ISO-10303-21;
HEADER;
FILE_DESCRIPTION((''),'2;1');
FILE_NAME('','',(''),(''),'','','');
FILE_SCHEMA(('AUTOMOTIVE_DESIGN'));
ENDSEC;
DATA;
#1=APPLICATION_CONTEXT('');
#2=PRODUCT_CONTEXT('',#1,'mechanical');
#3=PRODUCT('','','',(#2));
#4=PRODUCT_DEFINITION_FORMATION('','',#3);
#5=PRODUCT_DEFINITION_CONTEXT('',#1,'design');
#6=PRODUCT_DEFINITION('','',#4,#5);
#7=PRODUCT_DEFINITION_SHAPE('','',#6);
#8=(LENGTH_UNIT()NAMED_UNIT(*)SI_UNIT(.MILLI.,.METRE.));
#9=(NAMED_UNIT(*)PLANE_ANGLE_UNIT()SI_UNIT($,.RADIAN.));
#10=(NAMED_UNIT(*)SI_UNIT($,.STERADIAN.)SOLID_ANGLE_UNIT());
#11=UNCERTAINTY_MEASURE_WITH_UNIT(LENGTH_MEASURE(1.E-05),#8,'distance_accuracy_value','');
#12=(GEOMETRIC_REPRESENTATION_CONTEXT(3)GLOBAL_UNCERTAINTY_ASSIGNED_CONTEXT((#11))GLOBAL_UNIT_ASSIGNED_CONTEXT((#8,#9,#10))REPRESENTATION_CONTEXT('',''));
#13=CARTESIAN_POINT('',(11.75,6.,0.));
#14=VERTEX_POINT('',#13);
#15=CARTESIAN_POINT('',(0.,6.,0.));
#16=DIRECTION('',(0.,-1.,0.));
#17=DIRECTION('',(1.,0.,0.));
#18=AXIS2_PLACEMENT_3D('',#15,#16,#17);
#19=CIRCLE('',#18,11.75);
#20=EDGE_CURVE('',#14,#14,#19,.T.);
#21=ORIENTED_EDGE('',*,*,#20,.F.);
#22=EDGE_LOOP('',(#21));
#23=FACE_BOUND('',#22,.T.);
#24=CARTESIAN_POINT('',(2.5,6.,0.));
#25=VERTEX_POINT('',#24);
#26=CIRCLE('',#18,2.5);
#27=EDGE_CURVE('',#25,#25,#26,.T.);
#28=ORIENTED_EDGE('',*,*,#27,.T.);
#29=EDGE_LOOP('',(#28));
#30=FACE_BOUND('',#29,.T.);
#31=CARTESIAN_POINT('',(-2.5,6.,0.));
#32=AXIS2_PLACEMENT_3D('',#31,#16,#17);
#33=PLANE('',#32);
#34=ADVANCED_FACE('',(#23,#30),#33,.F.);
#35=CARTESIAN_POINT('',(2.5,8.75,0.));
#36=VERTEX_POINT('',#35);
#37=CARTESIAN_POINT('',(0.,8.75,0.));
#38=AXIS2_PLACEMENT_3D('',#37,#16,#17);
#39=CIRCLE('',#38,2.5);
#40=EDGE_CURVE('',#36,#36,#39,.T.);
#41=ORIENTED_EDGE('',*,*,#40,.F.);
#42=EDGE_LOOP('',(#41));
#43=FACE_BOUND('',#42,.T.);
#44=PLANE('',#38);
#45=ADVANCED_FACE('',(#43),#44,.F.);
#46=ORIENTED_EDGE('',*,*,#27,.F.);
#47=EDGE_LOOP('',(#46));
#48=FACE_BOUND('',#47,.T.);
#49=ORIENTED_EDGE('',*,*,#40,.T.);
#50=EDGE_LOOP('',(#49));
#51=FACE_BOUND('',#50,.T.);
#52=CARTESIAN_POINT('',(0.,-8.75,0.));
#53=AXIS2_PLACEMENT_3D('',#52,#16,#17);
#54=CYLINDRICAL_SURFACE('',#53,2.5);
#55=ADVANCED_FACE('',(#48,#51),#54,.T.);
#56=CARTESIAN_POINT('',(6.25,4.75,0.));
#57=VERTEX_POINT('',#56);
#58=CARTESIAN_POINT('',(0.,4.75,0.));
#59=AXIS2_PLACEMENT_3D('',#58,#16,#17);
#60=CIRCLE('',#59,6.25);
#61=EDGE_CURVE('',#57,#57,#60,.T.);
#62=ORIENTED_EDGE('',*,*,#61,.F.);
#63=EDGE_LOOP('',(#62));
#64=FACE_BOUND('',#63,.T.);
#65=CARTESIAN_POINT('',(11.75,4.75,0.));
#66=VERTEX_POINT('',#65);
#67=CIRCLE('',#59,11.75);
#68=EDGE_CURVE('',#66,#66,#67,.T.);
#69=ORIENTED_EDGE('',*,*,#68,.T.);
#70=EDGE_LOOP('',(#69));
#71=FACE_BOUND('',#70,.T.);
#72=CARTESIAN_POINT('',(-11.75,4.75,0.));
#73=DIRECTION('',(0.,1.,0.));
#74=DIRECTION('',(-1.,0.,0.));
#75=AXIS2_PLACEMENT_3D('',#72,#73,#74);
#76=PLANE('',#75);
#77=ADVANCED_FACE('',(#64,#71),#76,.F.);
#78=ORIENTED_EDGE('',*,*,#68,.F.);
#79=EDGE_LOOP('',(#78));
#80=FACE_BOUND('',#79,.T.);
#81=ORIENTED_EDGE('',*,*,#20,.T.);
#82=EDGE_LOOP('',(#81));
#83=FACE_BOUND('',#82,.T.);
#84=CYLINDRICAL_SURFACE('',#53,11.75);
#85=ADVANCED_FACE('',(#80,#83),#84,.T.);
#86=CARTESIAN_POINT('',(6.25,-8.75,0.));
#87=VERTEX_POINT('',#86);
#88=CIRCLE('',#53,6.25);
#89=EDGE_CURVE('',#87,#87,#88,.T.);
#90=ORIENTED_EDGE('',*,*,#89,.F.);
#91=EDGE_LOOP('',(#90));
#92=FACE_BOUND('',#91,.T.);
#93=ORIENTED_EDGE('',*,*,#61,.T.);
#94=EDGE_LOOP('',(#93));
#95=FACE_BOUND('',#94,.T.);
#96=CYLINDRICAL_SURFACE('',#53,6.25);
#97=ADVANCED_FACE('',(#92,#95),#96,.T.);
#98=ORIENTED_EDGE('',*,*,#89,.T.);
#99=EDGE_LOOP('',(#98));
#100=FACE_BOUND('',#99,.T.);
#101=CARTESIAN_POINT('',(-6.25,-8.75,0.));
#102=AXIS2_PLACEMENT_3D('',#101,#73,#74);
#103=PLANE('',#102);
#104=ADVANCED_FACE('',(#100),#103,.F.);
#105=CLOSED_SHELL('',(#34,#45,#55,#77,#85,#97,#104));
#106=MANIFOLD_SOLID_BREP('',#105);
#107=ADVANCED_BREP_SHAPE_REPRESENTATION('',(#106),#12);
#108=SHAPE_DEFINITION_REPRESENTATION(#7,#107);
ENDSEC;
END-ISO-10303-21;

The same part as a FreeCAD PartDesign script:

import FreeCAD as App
import Part
import Sketcher
Q = App.Units.Quantity

doc = App.newDocument("Part")
body = doc.addObject("PartDesign::Body", "Body")

sketch1 = doc.addObject("Sketcher::SketchObject", "Sketch")
body.addObject(sketch1)
sketch1.AttachmentSupport = (doc.XY_Plane, [""])
sketch1.MapMode = "FlatFace"
sketch1.addGeometry([
    Part.LineSegment(App.Vector(0, -8.75, 0), App.Vector(0, 8.75, 0)),
    Part.LineSegment(App.Vector(0, 8.75, 0), App.Vector(-2.5, 8.75, 0)),
    Part.LineSegment(App.Vector(-2.5, 8.75, 0), App.Vector(-2.5, 6, 0)),
    Part.LineSegment(App.Vector(-2.5, 6, 0), App.Vector(-11.75, 6, 0)),
    Part.LineSegment(App.Vector(-11.75, 6, 0), App.Vector(-11.75, 4.75, 0)),
    Part.LineSegment(App.Vector(-11.75, 4.75, 0), App.Vector(-6.25, 4.75, 0)),
    Part.LineSegment(App.Vector(-6.25, 4.75, 0), App.Vector(-6.25, -8.75, 0)),
    Part.LineSegment(App.Vector(-6.25, -8.75, 0), App.Vector(0, -8.75, 0)),
], False)
sketch1.addConstraint([
    Sketcher.Constraint("Coincident", 0, 2, 1, 1),
    Sketcher.Constraint("Coincident", 1, 2, 2, 1),
    Sketcher.Constraint("Coincident", 2, 2, 3, 1),
    Sketcher.Constraint("Coincident", 3, 2, 4, 1),
    Sketcher.Constraint("Coincident", 4, 2, 5, 1),
    Sketcher.Constraint("Coincident", 5, 2, 6, 1),
    Sketcher.Constraint("Coincident", 6, 2, 7, 1),
    Sketcher.Constraint("Coincident", 7, 2, 0, 1),
    Sketcher.Constraint("Vertical", 0),
    Sketcher.Constraint("Horizontal", 1),
    Sketcher.Constraint("Vertical", 2),
    Sketcher.Constraint("Horizontal", 3),
    Sketcher.Constraint("Vertical", 4),
    Sketcher.Constraint("Horizontal", 5),
    Sketcher.Constraint("Vertical", 6),
    Sketcher.Constraint("Horizontal", 7),
    Sketcher.Constraint("Symmetric", 0, 2, 7, 2, -1, 1),
    Sketcher.Constraint("DistanceX", 1, 2, 1, 1, Q("2.5 mm")),
    Sketcher.Constraint("DistanceX", 5, 1, 5, 2, Q("5.5 mm")),
    Sketcher.Constraint("DistanceY", 0, 1, 0, 2, Q("17.5 mm")),
    Sketcher.Constraint("DistanceY", 6, 2, 6, 1, Q("13.5 mm")),
    Sketcher.Constraint("DistanceY", -1, 1, 2, 2, Q("6 mm")),
    Sketcher.Constraint("DistanceX", 3, 2, 3, 1, Q("9.25 mm")),
])
revolution = doc.addObject("PartDesign::Revolution", "Revolution")
body.addObject(revolution)
revolution.Profile = sketch1
revolution.ReferenceAxis = (sketch1, ["V_Axis"])
revolution.Angle = 360

doc.recompute()
